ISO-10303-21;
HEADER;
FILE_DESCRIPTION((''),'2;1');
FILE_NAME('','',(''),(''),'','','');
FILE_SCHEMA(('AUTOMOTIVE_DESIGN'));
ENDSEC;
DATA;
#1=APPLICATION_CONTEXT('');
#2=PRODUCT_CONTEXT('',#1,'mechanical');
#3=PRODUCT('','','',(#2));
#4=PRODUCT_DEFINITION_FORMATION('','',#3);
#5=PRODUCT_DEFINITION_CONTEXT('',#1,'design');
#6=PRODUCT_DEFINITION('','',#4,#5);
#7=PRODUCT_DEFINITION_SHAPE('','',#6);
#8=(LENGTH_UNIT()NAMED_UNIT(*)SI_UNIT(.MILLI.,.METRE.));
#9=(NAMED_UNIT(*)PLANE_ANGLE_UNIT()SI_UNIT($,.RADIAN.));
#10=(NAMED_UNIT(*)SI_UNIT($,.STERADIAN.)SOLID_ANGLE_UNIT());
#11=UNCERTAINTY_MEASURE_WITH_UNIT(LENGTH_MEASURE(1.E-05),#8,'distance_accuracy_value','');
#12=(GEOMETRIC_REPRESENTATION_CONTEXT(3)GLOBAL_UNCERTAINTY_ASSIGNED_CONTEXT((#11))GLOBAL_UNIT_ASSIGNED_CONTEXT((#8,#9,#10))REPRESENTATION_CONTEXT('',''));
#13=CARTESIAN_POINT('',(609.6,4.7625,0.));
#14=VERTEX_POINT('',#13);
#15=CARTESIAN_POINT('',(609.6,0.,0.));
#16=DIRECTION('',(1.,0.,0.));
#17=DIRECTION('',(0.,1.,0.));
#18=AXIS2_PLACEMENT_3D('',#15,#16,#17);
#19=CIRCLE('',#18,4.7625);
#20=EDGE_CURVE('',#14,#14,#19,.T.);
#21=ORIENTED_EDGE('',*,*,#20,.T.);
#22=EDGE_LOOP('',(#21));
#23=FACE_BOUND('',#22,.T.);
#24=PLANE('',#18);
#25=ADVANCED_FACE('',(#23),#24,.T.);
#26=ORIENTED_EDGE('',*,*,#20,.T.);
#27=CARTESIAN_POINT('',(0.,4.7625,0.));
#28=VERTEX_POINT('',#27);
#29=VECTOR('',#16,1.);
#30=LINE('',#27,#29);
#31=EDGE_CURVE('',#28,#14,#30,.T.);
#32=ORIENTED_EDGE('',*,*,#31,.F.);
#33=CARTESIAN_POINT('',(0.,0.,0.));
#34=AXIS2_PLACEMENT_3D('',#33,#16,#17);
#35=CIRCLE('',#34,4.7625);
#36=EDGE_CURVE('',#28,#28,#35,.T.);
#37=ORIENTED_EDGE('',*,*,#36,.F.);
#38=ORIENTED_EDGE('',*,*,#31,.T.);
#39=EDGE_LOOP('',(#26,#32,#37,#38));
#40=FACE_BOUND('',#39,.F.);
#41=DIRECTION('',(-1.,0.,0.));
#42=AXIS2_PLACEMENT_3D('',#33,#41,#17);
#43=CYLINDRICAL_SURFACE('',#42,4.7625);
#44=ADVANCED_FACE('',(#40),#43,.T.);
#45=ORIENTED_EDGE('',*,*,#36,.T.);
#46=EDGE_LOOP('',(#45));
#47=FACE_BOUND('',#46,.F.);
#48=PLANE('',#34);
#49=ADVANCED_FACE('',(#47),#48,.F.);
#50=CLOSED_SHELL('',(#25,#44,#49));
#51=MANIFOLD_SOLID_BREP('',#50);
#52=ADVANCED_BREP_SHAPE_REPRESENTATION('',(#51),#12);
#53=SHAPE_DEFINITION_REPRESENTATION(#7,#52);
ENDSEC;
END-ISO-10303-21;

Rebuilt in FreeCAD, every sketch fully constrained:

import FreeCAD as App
import Part
import Sketcher

V = App.Vector
Q = App.Units.Quantity

doc = App.newDocument("Part")
params = doc.addObject("Spreadsheet::Sheet", "Params")
for row, (alias, value) in enumerate([
    ("sketch1_diameter", "0.375 in"),
    ("pad1_length", "24 in"),
], start=1):
    params.set(f"A{row}", alias)
    params.set(f"B{row}", "=" + value)
    params.setAlias(f"B{row}", alias)

body = doc.addObject("PartDesign::Body", "Body")

# Sketch on YZ plane
sketch1 = body.newObject("Sketcher::SketchObject", "Sketch")
sketch1.AttachmentSupport = (doc.getObject("YZ_Plane"), [""])
sketch1.MapMode = "FlatFace"
sketch1.addGeometry(Part.Circle(V(0, 0, 0), V(0, 0, 1), 4.8), False)
sketch1.addConstraint([
    Sketcher.Constraint("Coincident", 0, 3, -1, 1),
    Sketcher.Constraint("Diameter", 0, Q("0.375 in")),
])
sketch1.setExpression("Constraints[1]", "Params.sketch1_diameter")
pad1 = body.newObject("PartDesign::Pad", "Pad")
pad1.Profile = sketch1
pad1.setExpression("Length", "Params.pad1_length")

doc.recompute()
